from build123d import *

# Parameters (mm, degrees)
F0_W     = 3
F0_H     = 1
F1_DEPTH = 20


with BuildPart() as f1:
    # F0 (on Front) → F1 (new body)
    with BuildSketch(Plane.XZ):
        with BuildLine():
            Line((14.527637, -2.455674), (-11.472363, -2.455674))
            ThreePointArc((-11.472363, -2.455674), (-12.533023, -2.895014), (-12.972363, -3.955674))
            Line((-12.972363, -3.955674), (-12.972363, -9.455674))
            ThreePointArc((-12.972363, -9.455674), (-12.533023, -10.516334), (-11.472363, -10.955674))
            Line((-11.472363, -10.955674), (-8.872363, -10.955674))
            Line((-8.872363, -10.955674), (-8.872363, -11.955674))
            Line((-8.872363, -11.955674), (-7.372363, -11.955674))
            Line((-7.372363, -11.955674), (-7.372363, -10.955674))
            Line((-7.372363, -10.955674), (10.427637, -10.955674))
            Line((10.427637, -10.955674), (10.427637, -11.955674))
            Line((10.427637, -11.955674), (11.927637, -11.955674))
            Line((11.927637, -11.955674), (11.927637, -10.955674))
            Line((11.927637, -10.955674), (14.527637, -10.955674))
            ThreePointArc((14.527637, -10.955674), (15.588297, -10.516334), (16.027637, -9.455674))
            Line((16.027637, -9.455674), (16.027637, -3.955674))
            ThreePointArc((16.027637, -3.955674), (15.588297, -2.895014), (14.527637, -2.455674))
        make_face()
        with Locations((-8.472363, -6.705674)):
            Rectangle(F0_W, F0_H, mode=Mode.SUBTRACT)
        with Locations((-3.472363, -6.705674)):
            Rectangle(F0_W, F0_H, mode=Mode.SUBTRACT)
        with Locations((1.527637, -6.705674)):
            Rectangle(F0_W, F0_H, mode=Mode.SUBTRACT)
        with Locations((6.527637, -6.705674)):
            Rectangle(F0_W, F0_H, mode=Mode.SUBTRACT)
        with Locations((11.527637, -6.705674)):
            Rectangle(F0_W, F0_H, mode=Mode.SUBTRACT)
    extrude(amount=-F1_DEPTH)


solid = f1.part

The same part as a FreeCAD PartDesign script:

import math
import FreeCAD as App
import Part
import Sketcher
from FreeCAD import Vector
Q = App.Units.Quantity

doc = App.newDocument("Part")
body = doc.addObject("PartDesign::Body", "Body")

# Sketch on XZ plane
sketch1 = body.newObject("Sketcher::SketchObject", "Sketch")
sketch1.AttachmentSupport = (doc.getObject("XZ_Plane"), [""])
sketch1.MapMode = "FlatFace"
sketch1.addGeometry([
    Part.LineSegment(Vector(14.527637, -2.455674, 0), Vector(-11.472363, -2.455674, 0)),  # 0
    Part.ArcOfCircle(Part.Circle(Vector(-11.472362, -3.955675, 0), Vector(0, 0, 1), 1.500001), math.radians(90.000022), math.radians(179.999978)),  # 1
    Part.LineSegment(Vector(-12.972363, -3.955674, 0), Vector(-12.972363, -9.455674, 0)),  # 2
    Part.ArcOfCircle(Part.Circle(Vector(-11.472362, -9.455673, 0), Vector(0, 0, 1), 1.500001), math.radians(-179.999978), math.radians(-90.000022)),  # 3
    Part.LineSegment(Vector(-11.472363, -10.955674, 0), Vector(-8.872363, -10.955674, 0)),  # 4
    Part.LineSegment(Vector(-8.872363, -10.955674, 0), Vector(-8.872363, -11.955674, 0)),  # 5
    Part.LineSegment(Vector(-8.872363, -11.955674, 0), Vector(-7.372363, -11.955674, 0)),  # 6
    Part.LineSegment(Vector(-7.372363, -11.955674, 0), Vector(-7.372363, -10.955674, 0)),  # 7
    Part.LineSegment(Vector(-7.372363, -10.955674, 0), Vector(10.427637, -10.955674, 0)),  # 8
    Part.LineSegment(Vector(10.427637, -10.955674, 0), Vector(10.427637, -11.955674, 0)),  # 9
    Part.LineSegment(Vector(10.427637, -11.955674, 0), Vector(11.927637, -11.955674, 0)),  # 10
    Part.LineSegment(Vector(11.927637, -11.955674, 0), Vector(11.927637, -10.955674, 0)),  # 11
    Part.LineSegment(Vector(11.927637, -10.955674, 0), Vector(14.527637, -10.955674, 0)),  # 12
    Part.ArcOfCircle(Part.Circle(Vector(14.527636, -9.455673, 0), Vector(0, 0, 1), 1.500001), math.radians(-89.999978), math.radians(-0.000022)),  # 13
    Part.LineSegment(Vector(16.027637, -9.455674, 0), Vector(16.027637, -3.955674, 0)),  # 14
    Part.ArcOfCircle(Part.Circle(Vector(14.527636, -3.955675, 0), Vector(0, 0, 1), 1.500001), math.radians(0.000022), math.radians(89.999978)),  # 15
    Part.LineSegment(Vector(-6.972363, -7.205674, 0), Vector(-9.972363, -7.205674, 0)),  # 16
    Part.LineSegment(Vector(-9.972363, -7.205674, 0), Vector(-9.972363, -6.205674, 0)),  # 17
    Part.LineSegment(Vector(-9.972363, -6.205674, 0), Vector(-6.972363, -6.205674, 0)),  # 18
    Part.LineSegment(Vector(-6.972363, -6.205674, 0), Vector(-6.972363, -7.205674, 0)),  # 19
    Part.LineSegment(Vector(-1.972363, -7.205674, 0), Vector(-4.972363, -7.205674, 0)),  # 20
    Part.LineSegment(Vector(-4.972363, -7.205674, 0), Vector(-4.972363, -6.205674, 0)),  # 21
    Part.LineSegment(Vector(-4.972363, -6.205674, 0), Vector(-1.972363, -6.205674, 0)),  # 22
    Part.LineSegment(Vector(-1.972363, -6.205674, 0), Vector(-1.972363, -7.205674, 0)),  # 23
    Part.LineSegment(Vector(3.027637, -7.205674, 0), Vector(0.027637, -7.205674, 0)),  # 24
    Part.LineSegment(Vector(0.027637, -7.205674, 0), Vector(0.027637, -6.205674, 0)),  # 25
    Part.LineSegment(Vector(0.027637, -6.205674, 0), Vector(3.027637, -6.205674, 0)),  # 26
    Part.LineSegment(Vector(3.027637, -6.205674, 0), Vector(3.027637, -7.205674, 0)),  # 27
    Part.LineSegment(Vector(8.027637, -7.205674, 0), Vector(5.027637, -7.205674, 0)),  # 28
    Part.LineSegment(Vector(5.027637, -7.205674, 0), Vector(5.027637, -6.205674, 0)),  # 29
    Part.LineSegment(Vector(5.027637, -6.205674, 0), Vector(8.027637, -6.205674, 0)),  # 30
    Part.LineSegment(Vector(8.027637, -6.205674, 0), Vector(8.027637, -7.205674, 0)),  # 31
    Part.LineSegment(Vector(13.027637, -7.205674, 0), Vector(10.027637, -7.205674, 0)),  # 32
    Part.LineSegment(Vector(10.027637, -7.205674, 0), Vector(10.027637, -6.205674, 0)),  # 33
    Part.LineSegment(Vector(10.027637, -6.205674, 0), Vector(13.027637, -6.205674, 0)),  # 34
    Part.LineSegment(Vector(13.027637, -6.205674, 0), Vector(13.027637, -7.205674, 0)),  # 35
], False)
sketch1.addConstraint([
    Sketcher.Constraint("Tangent", 0, 2, 1, 1),
    Sketcher.Constraint("Tangent", 1, 2, 2, 1),
    Sketcher.Constraint("Tangent", 2, 2, 3, 1),
    Sketcher.Constraint("Tangent", 3, 2, 4, 1),
    Sketcher.Constraint("Coincident", 4, 2, 5, 1),
    Sketcher.Constraint("Coincident", 5, 2, 6, 1),
    Sketcher.Constraint("Coincident", 6, 2, 7, 1),
    Sketcher.Constraint("Coincident", 7, 2, 8, 1),
    Sketcher.Constraint("Coincident", 8, 2, 9, 1),
    Sketcher.Constraint("Coincident", 9, 2, 10, 1),
    Sketcher.Constraint("Coincident", 10, 2, 11, 1),
    Sketcher.Constraint("Coincident", 11, 2, 12, 1),
    Sketcher.Constraint("Tangent", 12, 2, 13, 1),
    Sketcher.Constraint("Tangent", 13, 2, 14, 1),
    Sketcher.Constraint("Tangent", 14, 2, 15, 1),
    Sketcher.Constraint("Tangent", 15, 2, 0, 1),
    Sketcher.Constraint("Coincident", 16, 2, 17, 1),
    Sketcher.Constraint("Coincident", 17, 2, 18, 1),
    Sketcher.Constraint("Coincident", 18, 2, 19, 1),
    Sketcher.Constraint("Coincident", 19, 2, 16, 1),
    Sketcher.Constraint("Coincident", 20, 2, 21, 1),
    Sketcher.Constraint("Coincident", 21, 2, 22, 1),
    Sketcher.Constraint("Coincident", 22, 2, 23, 1),
    Sketcher.Constraint("Coincident", 23, 2, 20, 1),
    Sketcher.Constraint("Coincident", 24, 2, 25, 1),
    Sketcher.Constraint("Coincident", 25, 2, 26, 1),
    Sketcher.Constraint("Coincident", 26, 2, 27, 1),
    Sketcher.Constraint("Coincident", 27, 2, 24, 1),
    Sketcher.Constraint("Coincident", 28, 2, 29, 1),
    Sketcher.Constraint("Coincident", 29, 2, 30, 1),
    Sketcher.Constraint("Coincident", 30, 2, 31, 1),
    Sketcher.Constraint("Coincident", 31, 2, 28, 1),
    Sketcher.Constraint("Coincident", 32, 2, 33, 1),
    Sketcher.Constraint("Coincident", 33, 2, 34, 1),
    Sketcher.Constraint("Coincident", 34, 2, 35, 1),
    Sketcher.Constraint("Coincident", 35, 2, 32, 1),
    Sketcher.Constraint("Horizontal", 0),
    Sketcher.Constraint("Vertical", 2),
    Sketcher.Constraint("Horizontal", 4),
    Sketcher.Constraint("Vertical", 5),
    Sketcher.Constraint("Horizontal", 6),
    Sketcher.Constraint("Vertical", 7),
    Sketcher.Constraint("Horizontal", 8),
    Sketcher.Constraint("Vertical", 9),
    Sketcher.Constraint("Horizontal", 10),
    Sketcher.Constraint("Vertical", 11),
    Sketcher.Constraint("Horizontal", 12),
    Sketcher.Constraint("Vertical", 14),
    Sketcher.Constraint("Horizontal", 16),
    Sketcher.Constraint("Vertical", 17),
    Sketcher.Constraint("Horizontal", 18),
    Sketcher.Constraint("Vertical", 19),
    Sketcher.Constraint("Horizontal", 20),
    Sketcher.Constraint("Vertical", 21),
    Sketcher.Constraint("Horizontal", 22),
    Sketcher.Constraint("Vertical", 23),
    Sketcher.Constraint("Horizontal", 24),
    Sketcher.Constraint("Vertical", 25),
    Sketcher.Constraint("Horizontal", 26),
    Sketcher.Constraint("Vertical", 27),
    Sketcher.Constraint("Horizontal", 28),
    Sketcher.Constraint("Vertical", 29),
    Sketcher.Constraint("Horizontal", 30),
    Sketcher.Constraint("Vertical", 31),
    Sketcher.Constraint("Horizontal", 32),
    Sketcher.Constraint("Vertical", 33),
    Sketcher.Constraint("Horizontal", 34),
    Sketcher.Constraint("Vertical", 35),
    Sketcher.Constraint("Equal", 1, 3),
    Sketcher.Constraint("Equal", 3, 13),
    Sketcher.Constraint("Equal", 13, 15),
    Sketcher.Constraint("Horizontal", 3, 3, 13, 3),
    Sketcher.Constraint("Horizontal", 4, 2, 7, 2),
    Sketcher.Constraint("Horizontal", 6, 2, 9, 2),
    Sketcher.Constraint("Horizontal", 19, 2, 20, 2),
    Sketcher.Constraint("Horizontal", 18, 2, 21, 2),
    Sketcher.Constraint("Horizontal", 23, 2, 24, 2),
    Sketcher.Constraint("Horizontal", 22, 2, 25, 2),
    Sketcher.Constraint("Horizontal", 27, 2, 28, 2),
    Sketcher.Constraint("Horizontal", 26, 2, 29, 2),
    Sketcher.Constraint("Horizontal", 31, 2, 32, 2),
    Sketcher.Constraint("Horizontal", 30, 2, 33, 2),
    Sketcher.Constraint("Equal", 6, 10),
    Sketcher.Constraint("Equal", 4, 12),
    Sketcher.Constraint("Equal", 18, 20),
    Sketcher.Constraint("Equal", 22, 24),
    Sketcher.Constraint("Equal", 26, 28),
    Sketcher.Constraint("Equal", 30, 32),
    Sketcher.Constraint("Equal", 11, 17),
    Sketcher.Constraint("Radius", 1, Q("1.500001 mm")),
    Sketcher.Constraint("DistanceX", 0, 2, 0, 1, Q("26 mm")),
    Sketcher.Constraint("DistanceX", 16, 2, 16, 1, Q("3 mm")),
    Sketcher.Constraint("DistanceY", 5, 2, 5, 1, Q("1 mm")),
    Sketcher.Constraint("DistanceX", 4, 1, 4, 2, Q("2.6 mm")),
    Sketcher.Constraint("DistanceX", 6, 1, 6, 2, Q("1.5 mm")),
    Sketcher.Constraint("DistanceY", 2, 2, 2, 1, Q("5.5 mm")),
    Sketcher.Constraint("DistanceX", 2, 2, 16, 2, Q("3 mm")),
    Sketcher.Constraint("DistanceX", 19, 2, 20, 2, Q("2 mm")),
    Sketcher.Constraint("DistanceX", 23, 2, 24, 2, Q("2 mm")),
    Sketcher.Constraint("DistanceX", 27, 2, 28, 2, Q("2 mm")),
    Sketcher.Constraint("DistanceX", 31, 2, 32, 2, Q("2 mm")),
    Sketcher.Constraint("DistanceY", 3, 3, 16, 2, Q("2.249999 mm")),
    Sketcher.Constraint("DistanceX", 1, 3, -1, 1, Q("11.472362 mm")),
    Sketcher.Constraint("DistanceY", 1, 3, -1, 1, Q("3.955675 mm")),
])
pad1 = body.newObject("PartDesign::Pad", "Pad")
pad1.Profile = sketch1
pad1.Length = 20
pad1.Reversed = True

doc.recompute()
